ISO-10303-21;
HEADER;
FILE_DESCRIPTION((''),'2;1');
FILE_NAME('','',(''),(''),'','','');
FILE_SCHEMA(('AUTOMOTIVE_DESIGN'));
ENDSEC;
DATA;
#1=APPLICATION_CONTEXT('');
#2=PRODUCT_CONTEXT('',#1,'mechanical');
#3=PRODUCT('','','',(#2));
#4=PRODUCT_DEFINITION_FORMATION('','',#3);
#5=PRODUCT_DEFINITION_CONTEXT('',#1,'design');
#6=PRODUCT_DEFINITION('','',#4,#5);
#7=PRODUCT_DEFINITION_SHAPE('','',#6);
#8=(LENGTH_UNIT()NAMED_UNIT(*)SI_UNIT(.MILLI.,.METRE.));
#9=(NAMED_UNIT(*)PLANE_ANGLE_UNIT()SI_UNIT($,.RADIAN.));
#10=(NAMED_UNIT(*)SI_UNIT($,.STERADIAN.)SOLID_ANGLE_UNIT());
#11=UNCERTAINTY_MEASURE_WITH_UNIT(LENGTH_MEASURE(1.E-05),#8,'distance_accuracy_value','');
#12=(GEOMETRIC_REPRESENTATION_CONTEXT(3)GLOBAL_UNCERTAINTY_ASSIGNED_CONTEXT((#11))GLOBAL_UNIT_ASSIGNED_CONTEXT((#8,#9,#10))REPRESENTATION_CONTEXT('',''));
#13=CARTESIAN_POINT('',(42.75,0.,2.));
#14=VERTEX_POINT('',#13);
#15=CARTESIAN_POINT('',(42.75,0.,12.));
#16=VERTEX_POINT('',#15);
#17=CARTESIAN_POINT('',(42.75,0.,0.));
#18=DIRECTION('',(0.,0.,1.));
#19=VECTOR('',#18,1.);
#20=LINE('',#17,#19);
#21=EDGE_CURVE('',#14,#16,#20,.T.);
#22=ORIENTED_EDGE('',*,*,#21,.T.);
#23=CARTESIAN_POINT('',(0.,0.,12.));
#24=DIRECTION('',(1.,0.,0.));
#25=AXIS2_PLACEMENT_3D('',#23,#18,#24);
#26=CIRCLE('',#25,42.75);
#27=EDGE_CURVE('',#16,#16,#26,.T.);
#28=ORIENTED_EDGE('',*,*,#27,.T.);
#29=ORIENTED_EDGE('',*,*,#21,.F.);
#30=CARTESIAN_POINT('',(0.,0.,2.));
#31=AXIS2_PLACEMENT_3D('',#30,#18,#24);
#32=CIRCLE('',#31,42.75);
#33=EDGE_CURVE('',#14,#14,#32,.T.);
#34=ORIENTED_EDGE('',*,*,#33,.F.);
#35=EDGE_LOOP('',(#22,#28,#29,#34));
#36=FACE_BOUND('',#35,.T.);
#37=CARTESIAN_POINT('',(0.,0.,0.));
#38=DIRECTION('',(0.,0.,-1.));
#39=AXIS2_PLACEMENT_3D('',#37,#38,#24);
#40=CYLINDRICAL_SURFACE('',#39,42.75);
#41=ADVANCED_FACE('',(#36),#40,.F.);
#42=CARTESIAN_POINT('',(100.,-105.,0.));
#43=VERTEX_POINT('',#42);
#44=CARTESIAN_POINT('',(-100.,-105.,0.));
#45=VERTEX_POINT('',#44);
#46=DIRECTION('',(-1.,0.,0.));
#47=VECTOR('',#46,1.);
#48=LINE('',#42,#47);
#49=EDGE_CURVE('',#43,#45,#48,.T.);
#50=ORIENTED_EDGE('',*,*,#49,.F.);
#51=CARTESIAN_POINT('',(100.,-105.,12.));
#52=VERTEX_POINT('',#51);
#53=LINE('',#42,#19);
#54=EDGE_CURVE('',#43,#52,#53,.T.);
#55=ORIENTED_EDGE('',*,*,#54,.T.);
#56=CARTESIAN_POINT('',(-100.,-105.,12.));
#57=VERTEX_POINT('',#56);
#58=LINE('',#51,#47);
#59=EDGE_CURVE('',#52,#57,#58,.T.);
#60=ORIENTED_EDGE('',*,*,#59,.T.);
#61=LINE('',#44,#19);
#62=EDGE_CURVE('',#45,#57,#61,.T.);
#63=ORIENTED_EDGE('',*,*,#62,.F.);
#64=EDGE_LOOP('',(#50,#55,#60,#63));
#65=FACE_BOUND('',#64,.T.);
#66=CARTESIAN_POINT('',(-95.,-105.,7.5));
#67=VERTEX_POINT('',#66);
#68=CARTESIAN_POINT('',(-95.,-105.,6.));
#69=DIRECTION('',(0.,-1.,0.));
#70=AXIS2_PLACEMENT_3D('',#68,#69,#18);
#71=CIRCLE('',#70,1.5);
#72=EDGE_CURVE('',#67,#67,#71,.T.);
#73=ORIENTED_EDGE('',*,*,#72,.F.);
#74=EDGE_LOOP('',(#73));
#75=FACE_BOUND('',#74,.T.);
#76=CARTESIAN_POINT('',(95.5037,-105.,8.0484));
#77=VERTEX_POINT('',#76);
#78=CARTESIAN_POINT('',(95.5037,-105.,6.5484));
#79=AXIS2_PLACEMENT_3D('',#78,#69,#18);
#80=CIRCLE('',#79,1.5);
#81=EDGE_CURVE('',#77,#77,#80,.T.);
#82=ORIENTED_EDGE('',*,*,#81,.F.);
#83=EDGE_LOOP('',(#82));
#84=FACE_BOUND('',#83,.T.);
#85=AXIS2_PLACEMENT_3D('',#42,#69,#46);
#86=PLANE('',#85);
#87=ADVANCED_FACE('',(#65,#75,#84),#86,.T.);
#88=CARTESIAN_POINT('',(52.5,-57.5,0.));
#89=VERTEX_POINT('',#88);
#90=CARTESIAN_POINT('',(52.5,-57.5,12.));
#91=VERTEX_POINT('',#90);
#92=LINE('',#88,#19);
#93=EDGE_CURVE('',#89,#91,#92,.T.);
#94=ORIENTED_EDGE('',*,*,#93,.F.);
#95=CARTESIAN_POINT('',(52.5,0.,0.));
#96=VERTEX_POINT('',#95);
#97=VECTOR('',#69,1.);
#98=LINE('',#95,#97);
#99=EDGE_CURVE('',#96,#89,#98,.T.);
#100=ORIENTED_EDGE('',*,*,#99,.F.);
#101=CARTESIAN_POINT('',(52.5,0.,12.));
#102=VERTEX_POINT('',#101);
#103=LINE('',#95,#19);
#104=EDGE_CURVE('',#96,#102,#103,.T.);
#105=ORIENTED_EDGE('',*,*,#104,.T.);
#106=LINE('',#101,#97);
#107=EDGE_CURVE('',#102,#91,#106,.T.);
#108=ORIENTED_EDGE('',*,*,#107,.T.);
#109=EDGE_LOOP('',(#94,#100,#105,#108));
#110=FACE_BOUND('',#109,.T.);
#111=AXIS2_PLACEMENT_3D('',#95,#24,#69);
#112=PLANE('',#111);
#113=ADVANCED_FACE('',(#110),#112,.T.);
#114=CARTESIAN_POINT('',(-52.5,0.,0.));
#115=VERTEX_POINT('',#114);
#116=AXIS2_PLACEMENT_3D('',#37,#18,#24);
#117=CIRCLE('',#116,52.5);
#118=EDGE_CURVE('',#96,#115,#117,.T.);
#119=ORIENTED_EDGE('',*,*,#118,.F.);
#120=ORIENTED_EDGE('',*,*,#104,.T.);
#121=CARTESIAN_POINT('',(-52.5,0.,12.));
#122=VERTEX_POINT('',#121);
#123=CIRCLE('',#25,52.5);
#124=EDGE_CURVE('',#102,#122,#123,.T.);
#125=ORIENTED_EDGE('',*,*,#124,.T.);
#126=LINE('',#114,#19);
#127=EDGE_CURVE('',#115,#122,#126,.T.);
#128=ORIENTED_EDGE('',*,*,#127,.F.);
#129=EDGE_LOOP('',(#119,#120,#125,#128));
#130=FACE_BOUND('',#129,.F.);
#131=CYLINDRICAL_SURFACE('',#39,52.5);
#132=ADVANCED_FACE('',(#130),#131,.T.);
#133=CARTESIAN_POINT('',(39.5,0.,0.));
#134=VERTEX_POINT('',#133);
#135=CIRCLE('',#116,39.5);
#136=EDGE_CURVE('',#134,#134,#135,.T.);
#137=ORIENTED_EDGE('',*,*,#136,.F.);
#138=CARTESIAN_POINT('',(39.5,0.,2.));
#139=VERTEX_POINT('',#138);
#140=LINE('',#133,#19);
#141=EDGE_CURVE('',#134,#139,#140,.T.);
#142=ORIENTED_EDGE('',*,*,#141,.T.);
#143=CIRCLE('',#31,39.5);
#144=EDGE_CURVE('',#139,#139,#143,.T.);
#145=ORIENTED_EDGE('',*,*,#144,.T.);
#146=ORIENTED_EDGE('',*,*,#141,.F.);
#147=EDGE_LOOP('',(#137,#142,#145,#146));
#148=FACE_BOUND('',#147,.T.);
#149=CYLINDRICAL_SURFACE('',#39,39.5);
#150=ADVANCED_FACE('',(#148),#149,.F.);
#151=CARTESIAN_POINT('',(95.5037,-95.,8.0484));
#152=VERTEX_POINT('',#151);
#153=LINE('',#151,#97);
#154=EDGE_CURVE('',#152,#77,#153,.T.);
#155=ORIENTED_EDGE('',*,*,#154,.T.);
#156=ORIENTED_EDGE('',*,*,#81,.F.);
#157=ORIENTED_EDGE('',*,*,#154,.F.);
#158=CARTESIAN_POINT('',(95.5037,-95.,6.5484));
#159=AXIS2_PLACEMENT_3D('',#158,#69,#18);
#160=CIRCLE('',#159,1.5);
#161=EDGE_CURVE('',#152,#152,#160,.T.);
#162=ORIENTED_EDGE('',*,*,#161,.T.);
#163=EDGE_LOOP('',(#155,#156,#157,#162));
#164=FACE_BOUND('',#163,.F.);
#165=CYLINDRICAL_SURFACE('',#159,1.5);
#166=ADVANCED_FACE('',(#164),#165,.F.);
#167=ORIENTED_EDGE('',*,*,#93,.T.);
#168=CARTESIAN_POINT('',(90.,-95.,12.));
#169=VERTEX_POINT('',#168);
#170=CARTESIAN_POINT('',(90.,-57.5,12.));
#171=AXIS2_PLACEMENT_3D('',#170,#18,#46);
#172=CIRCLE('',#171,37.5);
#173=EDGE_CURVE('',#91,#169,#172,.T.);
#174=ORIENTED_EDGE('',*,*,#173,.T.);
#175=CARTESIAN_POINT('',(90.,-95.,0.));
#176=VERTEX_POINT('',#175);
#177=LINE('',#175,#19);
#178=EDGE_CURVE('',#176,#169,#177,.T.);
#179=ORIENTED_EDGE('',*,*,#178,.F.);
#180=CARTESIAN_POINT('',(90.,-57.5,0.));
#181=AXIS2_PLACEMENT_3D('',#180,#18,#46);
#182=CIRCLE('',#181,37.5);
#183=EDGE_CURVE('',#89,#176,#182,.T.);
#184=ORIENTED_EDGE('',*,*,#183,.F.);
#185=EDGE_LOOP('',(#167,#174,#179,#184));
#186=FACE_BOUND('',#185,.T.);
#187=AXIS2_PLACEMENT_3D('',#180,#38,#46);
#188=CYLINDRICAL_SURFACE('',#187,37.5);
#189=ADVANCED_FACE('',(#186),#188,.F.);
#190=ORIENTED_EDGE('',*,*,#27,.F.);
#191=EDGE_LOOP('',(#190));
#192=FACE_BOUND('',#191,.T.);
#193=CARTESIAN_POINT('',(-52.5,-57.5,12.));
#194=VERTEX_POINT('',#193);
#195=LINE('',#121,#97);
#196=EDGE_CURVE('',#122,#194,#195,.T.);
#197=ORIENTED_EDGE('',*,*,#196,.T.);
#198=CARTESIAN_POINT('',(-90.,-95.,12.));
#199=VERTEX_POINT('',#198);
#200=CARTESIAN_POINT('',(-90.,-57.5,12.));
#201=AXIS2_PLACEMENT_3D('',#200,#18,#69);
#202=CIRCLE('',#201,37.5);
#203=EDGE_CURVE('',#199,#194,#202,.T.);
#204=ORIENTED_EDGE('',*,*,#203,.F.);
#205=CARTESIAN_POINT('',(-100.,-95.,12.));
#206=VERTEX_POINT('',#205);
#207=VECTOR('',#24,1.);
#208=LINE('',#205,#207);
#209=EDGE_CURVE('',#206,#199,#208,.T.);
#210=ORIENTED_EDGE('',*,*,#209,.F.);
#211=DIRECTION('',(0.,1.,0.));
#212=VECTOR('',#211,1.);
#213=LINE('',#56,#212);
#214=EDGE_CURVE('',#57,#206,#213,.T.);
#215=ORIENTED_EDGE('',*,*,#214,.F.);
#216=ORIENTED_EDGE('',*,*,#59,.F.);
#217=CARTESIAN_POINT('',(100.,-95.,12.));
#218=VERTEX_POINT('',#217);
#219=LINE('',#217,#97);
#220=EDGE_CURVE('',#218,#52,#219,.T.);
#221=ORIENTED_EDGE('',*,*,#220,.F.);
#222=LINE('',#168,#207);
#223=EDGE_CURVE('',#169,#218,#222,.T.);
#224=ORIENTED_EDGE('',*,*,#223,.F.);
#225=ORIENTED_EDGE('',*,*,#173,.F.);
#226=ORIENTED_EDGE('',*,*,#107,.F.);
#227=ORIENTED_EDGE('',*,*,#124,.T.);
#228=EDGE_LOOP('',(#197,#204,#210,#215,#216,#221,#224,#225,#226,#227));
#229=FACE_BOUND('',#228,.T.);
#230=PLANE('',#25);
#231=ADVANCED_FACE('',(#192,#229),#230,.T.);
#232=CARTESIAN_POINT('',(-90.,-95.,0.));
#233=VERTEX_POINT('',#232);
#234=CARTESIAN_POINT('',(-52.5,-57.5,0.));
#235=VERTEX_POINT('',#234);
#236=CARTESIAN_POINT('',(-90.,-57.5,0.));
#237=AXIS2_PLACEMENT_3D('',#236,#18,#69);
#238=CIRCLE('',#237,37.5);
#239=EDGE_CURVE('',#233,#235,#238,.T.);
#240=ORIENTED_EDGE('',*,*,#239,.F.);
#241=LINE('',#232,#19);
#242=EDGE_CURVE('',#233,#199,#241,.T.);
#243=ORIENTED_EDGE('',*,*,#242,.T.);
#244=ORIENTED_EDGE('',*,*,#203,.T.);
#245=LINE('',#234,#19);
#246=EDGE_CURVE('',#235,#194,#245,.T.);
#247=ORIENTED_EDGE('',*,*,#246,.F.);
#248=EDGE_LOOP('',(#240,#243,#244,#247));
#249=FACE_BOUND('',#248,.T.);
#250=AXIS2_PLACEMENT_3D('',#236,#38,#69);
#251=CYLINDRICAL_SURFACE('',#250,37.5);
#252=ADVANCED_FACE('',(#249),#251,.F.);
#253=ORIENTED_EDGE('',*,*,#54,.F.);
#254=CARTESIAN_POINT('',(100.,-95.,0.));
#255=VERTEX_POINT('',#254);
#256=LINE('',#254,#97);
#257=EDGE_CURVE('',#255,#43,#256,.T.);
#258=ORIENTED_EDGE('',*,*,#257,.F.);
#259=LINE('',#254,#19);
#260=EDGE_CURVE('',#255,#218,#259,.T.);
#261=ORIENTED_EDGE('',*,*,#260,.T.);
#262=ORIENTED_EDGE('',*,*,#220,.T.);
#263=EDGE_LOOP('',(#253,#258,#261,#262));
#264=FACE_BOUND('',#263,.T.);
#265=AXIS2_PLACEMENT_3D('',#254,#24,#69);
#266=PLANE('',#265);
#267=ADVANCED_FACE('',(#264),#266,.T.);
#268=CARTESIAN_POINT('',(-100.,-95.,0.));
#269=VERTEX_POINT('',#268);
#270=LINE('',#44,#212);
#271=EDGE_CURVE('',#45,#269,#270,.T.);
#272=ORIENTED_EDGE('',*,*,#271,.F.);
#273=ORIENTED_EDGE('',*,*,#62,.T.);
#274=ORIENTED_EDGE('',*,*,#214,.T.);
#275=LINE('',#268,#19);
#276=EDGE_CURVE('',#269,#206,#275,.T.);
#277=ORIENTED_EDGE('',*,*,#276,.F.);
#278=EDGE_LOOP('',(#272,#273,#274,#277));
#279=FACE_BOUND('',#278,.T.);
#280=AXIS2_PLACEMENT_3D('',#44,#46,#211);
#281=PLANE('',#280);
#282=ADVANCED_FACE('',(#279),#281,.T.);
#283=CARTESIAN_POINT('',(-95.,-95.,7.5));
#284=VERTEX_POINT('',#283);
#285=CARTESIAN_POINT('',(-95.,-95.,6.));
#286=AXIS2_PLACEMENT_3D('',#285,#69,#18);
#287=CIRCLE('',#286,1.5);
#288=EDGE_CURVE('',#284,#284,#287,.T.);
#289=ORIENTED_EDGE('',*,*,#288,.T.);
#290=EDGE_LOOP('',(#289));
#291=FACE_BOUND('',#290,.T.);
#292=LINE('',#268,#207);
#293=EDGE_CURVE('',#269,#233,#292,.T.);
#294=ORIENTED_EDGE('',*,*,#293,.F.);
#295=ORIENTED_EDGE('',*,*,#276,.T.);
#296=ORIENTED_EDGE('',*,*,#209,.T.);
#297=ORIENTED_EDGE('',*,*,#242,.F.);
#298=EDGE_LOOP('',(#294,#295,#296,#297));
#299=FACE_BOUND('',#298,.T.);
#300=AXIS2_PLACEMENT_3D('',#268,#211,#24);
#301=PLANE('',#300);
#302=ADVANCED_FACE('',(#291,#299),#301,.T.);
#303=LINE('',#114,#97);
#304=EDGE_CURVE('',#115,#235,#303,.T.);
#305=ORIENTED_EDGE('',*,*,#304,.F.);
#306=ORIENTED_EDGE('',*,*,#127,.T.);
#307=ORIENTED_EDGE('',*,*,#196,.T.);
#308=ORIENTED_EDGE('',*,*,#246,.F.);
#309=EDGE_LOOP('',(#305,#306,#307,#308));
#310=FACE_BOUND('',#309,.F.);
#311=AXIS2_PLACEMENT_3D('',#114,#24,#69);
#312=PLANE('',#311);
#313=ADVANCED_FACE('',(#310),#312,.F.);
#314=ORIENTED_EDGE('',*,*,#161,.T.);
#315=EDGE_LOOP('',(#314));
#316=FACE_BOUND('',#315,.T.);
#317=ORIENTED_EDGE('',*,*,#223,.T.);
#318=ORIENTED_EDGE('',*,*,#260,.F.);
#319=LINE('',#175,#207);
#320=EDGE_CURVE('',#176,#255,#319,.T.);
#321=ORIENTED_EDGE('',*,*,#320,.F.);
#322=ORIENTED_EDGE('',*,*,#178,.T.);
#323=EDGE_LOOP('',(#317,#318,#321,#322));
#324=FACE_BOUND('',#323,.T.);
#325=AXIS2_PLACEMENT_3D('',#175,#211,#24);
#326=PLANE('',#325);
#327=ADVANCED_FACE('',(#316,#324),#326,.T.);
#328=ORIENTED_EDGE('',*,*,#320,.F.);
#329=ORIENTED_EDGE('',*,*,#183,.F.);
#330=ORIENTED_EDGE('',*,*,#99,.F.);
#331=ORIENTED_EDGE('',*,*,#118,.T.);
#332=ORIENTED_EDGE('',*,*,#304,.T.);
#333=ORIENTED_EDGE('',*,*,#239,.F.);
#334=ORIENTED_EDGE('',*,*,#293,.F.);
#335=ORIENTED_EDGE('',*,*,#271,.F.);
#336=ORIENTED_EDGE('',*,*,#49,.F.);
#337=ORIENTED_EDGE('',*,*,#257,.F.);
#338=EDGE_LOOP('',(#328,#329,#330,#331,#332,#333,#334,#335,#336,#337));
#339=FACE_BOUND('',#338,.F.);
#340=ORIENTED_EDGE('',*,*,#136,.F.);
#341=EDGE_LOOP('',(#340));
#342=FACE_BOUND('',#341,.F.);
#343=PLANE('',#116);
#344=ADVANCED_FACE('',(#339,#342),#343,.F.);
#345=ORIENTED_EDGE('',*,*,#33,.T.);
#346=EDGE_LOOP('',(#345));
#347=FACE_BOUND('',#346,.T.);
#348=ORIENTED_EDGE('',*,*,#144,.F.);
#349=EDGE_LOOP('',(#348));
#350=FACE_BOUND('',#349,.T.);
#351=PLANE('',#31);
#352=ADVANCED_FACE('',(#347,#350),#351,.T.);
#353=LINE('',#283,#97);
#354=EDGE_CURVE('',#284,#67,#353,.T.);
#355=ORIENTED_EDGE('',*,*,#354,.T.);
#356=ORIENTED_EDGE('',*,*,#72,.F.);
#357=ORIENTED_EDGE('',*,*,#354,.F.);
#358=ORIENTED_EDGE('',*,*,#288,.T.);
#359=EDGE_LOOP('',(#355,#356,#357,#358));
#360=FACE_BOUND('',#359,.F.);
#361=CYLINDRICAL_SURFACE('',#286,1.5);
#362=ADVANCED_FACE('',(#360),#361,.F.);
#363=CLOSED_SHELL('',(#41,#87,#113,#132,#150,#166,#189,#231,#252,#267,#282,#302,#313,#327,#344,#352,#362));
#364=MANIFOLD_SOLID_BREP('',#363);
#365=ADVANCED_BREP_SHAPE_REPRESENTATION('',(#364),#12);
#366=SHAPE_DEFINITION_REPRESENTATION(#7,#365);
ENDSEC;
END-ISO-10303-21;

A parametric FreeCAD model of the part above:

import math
import FreeCAD as App
import Part
import Sketcher

doc = App.newDocument("Part")
body = doc.addObject("PartDesign::Body", "Body")

# Sketch on XY plane
sketch1 = doc.addObject("Sketcher::SketchObject", "Sketch")
body.addObject(sketch1)
sketch1.AttachmentSupport = (doc.XY_Plane, [""])
sketch1.MapMode = "FlatFace"
sketch1.addGeometry([
    Part.LineSegment(App.Vector(-100, -105, 0), App.Vector(100, -105, 0)),  # 0
    Part.LineSegment(App.Vector(100, -105, 0), App.Vector(100, -95, 0)),  # 1
    Part.LineSegment(App.Vector(100, -95, 0), App.Vector(90, -95, 0)),  # 2
    Part.ArcOfCircle(Part.Circle(App.Vector(90, -58, 0), App.Vector(0, 0, 1), 38), math.radians(180), math.radians(270)),  # 3
    Part.LineSegment(App.Vector(52, -58, 0), App.Vector(52, 0, 0)),  # 4
    Part.ArcOfCircle(Part.Circle(App.Vector(0, 0, 0), App.Vector(0, 0, 1), 52), math.radians(0), math.radians(180)),  # 5
    Part.LineSegment(App.Vector(-52, 0, 0), App.Vector(-52, -58, 0)),  # 6
    Part.ArcOfCircle(Part.Circle(App.Vector(-90, -58, 0), App.Vector(0, 0, 1), 38), math.radians(-90), math.radians(0)),  # 7
    Part.LineSegment(App.Vector(-90, -95, 0), App.Vector(-100, -95, 0)),  # 8
    Part.LineSegment(App.Vector(-100, -95, 0), App.Vector(-100, -105, 0)),  # 9
    Part.Circle(App.Vector(0, 0, 0), App.Vector(0, 0, 1), 43),  # 10
], False)
sketch1.addConstraint([
    Sketcher.Constraint("Coincident", 0, 2, 1, 1),
    Sketcher.Constraint("Coincident", 1, 2, 2, 1),
    Sketcher.Constraint("Tangent", 2, 2, 3, 2),
    Sketcher.Constraint("Tangent", 3, 1, 4, 1),
    Sketcher.Constraint("Tangent", 4, 2, 5, 1),
    Sketcher.Constraint("Tangent", 5, 2, 6, 1),
    Sketcher.Constraint("Tangent", 6, 2, 7, 2),
    Sketcher.Constraint("Tangent", 7, 1, 8, 1),
    Sketcher.Constraint("Coincident", 8, 2, 9, 1),
    Sketcher.Constraint("Coincident", 9, 2, 0, 1),
    Sketcher.Constraint("Horizontal", 0),
    Sketcher.Constraint("Vertical", 1),
    Sketcher.Constraint("Horizontal", 2),
    Sketcher.Constraint("Vertical", 4),
    Sketcher.Constraint("Vertical", 6),
    Sketcher.Constraint("Horizontal", 8),
    Sketcher.Constraint("Vertical", 9),
    Sketcher.Constraint("Coincident", 5, 3, -1, 1),
    Sketcher.Constraint("Coincident", 10, 3, -1, 1),
    Sketcher.Constraint("Equal", 3, 7),
    Sketcher.Constraint("Symmetric", 1, 2, 8, 2, -2),
    Sketcher.Constraint("Equal", 8, 1),
    Sketcher.Constraint("Diameter", 10, 85.5),
    Sketcher.Constraint("Radius", 3, 37.5),
    Sketcher.Constraint("Radius", 5, 52.5),
    Sketcher.Constraint("DistanceX", 0, 1, 0, 2, 200.0),
    Sketcher.Constraint("DistanceY", 0, 2, -1, 1, 105.0),
])
pad1 = doc.addObject("PartDesign::Pad", "Pad")
body.addObject(pad1)
pad1.Profile = sketch1
pad1.Length = 12

# Sketch on XY plane
sketch2 = doc.addObject("Sketcher::SketchObject", "Sketch001")
body.addObject(sketch2)
sketch2.AttachmentSupport = (doc.XY_Plane, [""])
sketch2.MapMode = "FlatFace"
sketch2.addGeometry([
    Part.Circle(App.Vector(0, 0, 0), App.Vector(0, 0, 1), 43),
    Part.Circle(App.Vector(0, 0, 0), App.Vector(0, 0, 1), 40),
], False)
sketch2.addConstraint([
    Sketcher.Constraint("Coincident", 0, 3, -1, 1),
    Sketcher.Constraint("Coincident", 1, 3, -1, 1),
    Sketcher.Constraint("Diameter", 1, 79.0),
    Sketcher.Constraint("Diameter", 0, 85.5),
])
pad2 = doc.addObject("PartDesign::Pad", "Pad001")
body.addObject(pad2)
pad2.Profile = sketch2
pad2.Length = 2

# Sketch on XZ plane
sketch3 = doc.addObject("Sketcher::SketchObject", "Sketch002")
body.addObject(sketch3)
sketch3.AttachmentSupport = (doc.XZ_Plane, [""])
sketch3.MapMode = "FlatFace"
sketch3.AttachmentOffset = App.Placement(App.Vector(0, 0, 95), App.Rotation())
sketch3.addGeometry(Part.Circle(App.Vector(-95, 6, 0), App.Vector(0, 0, 1), 1.5), False)
sketch3.addConstraint([
    Sketcher.Constraint("Diameter", 0, 3.0),
    Sketcher.Constraint("DistanceX", 0, 3, -1, 1, 95.0),
    Sketcher.Constraint("DistanceY", -1, 1, 0, 3, 6.0),
])
doc.recompute()
hole = doc.addObject("PartDesign::Hole", "Hole")
body.addObject(hole)
hole.Profile = sketch3
hole.ThreadType = "None"
hole.Diameter = 3
hole.DepthType = "Dimension"
hole.Depth = 10
hole.DrillPoint = "Angled"
hole.DrillPointAngle = 118
hole.Reversed = True

# Sketch on XZ plane
sketch4 = doc.addObject("Sketcher::SketchObject", "Sketch003")
body.addObject(sketch4)
sketch4.AttachmentSupport = (doc.XZ_Plane, [""])
sketch4.MapMode = "FlatFace"
sketch4.AttachmentOffset = App.Placement(App.Vector(0, 0, 95), App.Rotation())
sketch4.addGeometry(Part.Circle(App.Vector(95.5, 6.5, 0), App.Vector(0, 0, 1), 1.5), False)
sketch4.addConstraint([
    Sketcher.Constraint("Diameter", 0, 3.0),
    Sketcher.Constraint("DistanceX", -1, 1, 0, 3, 95.5037),
    Sketcher.Constraint("DistanceY", -1, 1, 0, 3, 6.5484),
])
doc.recompute()
hole2 = doc.addObject("PartDesign::Hole", "Hole001")
body.addObject(hole2)
hole2.Profile = sketch4
hole2.ThreadType = "None"
hole2.Diameter = 3
hole2.DepthType = "Dimension"
hole2.Depth = 10
hole2.DrillPoint = "Angled"
hole2.DrillPointAngle = 118
hole2.Reversed = True

doc.recompute()
